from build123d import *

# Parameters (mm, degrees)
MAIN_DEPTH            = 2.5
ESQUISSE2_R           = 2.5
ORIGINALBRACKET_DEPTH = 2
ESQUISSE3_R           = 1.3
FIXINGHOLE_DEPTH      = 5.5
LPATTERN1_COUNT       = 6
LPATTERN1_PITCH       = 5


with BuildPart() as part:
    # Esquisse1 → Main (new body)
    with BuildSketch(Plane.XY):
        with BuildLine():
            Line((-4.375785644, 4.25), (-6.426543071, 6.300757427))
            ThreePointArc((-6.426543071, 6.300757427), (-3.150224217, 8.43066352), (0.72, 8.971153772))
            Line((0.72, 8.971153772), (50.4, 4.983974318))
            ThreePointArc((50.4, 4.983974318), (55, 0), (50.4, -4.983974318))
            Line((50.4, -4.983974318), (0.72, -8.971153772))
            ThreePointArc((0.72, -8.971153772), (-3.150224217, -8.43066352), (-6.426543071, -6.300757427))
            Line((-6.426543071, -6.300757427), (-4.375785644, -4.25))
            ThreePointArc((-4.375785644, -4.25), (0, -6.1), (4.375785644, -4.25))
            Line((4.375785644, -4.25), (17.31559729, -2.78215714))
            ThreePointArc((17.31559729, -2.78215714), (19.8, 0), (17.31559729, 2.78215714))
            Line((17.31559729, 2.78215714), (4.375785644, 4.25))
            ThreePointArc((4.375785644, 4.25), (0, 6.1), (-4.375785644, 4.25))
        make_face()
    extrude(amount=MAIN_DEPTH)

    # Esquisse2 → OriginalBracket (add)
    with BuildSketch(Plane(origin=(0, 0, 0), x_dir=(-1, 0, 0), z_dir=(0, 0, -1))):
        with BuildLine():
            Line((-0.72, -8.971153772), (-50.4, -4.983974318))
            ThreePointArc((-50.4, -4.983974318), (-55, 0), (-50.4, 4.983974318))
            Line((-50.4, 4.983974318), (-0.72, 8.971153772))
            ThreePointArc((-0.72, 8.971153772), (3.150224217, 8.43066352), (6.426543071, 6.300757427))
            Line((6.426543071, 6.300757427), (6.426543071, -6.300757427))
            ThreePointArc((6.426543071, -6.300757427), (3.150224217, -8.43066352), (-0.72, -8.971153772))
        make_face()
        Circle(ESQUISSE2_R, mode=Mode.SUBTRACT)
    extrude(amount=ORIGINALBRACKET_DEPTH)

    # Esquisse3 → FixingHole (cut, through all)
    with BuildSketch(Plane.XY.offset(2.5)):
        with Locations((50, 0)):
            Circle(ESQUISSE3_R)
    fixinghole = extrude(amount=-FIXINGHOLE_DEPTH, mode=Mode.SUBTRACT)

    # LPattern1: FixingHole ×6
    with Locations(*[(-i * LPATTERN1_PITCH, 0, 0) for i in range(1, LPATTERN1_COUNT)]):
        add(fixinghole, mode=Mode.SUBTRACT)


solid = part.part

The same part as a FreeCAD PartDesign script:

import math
import FreeCAD as App
import Part
import Sketcher

V = App.Vector

doc = App.newDocument("Part")
body = doc.addObject("PartDesign::Body", "Body")

sketch1 = body.newObject("Sketcher::SketchObject", "Sketch")
sketch1.AttachmentSupport = (doc.getObject("XY_Plane"), [""])
sketch1.MapMode = "FlatFace"
sketch1.addGeometry(Part.LineSegment(V(-6.426543, 6.300757, 0), V(-4.375786, 4.25, 0)), False)
sketch1.addGeometry(Part.ArcOfCircle(Part.Circle(V(0, 0, 0), V(0, 0, 1), 6.1), math.radians(44.164543), math.radians(135.835457)), False)
sketch1.addGeometry(Part.LineSegment(V(4.375786, 4.25, 0), V(17.315597, 2.782157, 0)), False)
sketch1.addGeometry(Part.ArcOfCircle(Part.Circle(V(17, 0, 0), V(0, 0, 1), 2.8), math.radians(-83.52825), math.radians(83.52825)), False)
sketch1.addGeometry(Part.LineSegment(V(17.315597, -2.782157, 0), V(4.375786, -4.25, 0)), False)
sketch1.addGeometry(Part.ArcOfCircle(Part.Circle(V(0, 0, 0), V(0, 0, 1), 6.1), math.radians(-135.835457), math.radians(-44.164543)), False)
sketch1.addGeometry(Part.LineSegment(V(-4.375786, -4.25, 0), V(-6.426543, -6.300757, 0)), False)
sketch1.addGeometry(Part.ArcOfCircle(Part.Circle(V(0, 0, 0), V(0, 0, 1), 9), math.radians(-135.566244), math.radians(-85.411434)), False)
sketch1.addGeometry(Part.LineSegment(V(0.72, -8.971154, 0), V(50.4, -4.983974, 0)), False)
sketch1.addGeometry(Part.ArcOfCircle(Part.Circle(V(50, 0, 0), V(0, 0, 1), 5), math.radians(-85.411434), math.radians(85.411434)), False)
sketch1.addGeometry(Part.LineSegment(V(50.4, 4.983974, 0), V(0.72, 8.971154, 0)), False)
sketch1.addGeometry(Part.ArcOfCircle(Part.Circle(V(0, 0, 0), V(0, 0, 1), 9), math.radians(85.411434), math.radians(135.566244)), False)
sketch1.addConstraint(Sketcher.Constraint("Coincident", 0, 2, 1, 2))
sketch1.addConstraint(Sketcher.Constraint("Coincident", 1, 1, 2, 1))
sketch1.addConstraint(Sketcher.Constraint("Tangent", 2, 2, 3, 2))
sketch1.addConstraint(Sketcher.Constraint("Tangent", 3, 1, 4, 1))
sketch1.addConstraint(Sketcher.Constraint("Coincident", 4, 2, 5, 2))
sketch1.addConstraint(Sketcher.Constraint("Coincident", 5, 1, 6, 1))
sketch1.addConstraint(Sketcher.Constraint("Coincident", 6, 2, 7, 1))
sketch1.addConstraint(Sketcher.Constraint("Tangent", 7, 2, 8, 1))
sketch1.addConstraint(Sketcher.Constraint("Tangent", 8, 2, 9, 1))
sketch1.addConstraint(Sketcher.Constraint("Tangent", 9, 2, 10, 1))
sketch1.addConstraint(Sketcher.Constraint("Tangent", 10, 2, 11, 1))
sketch1.addConstraint(Sketcher.Constraint("Coincident", 11, 2, 0, 1))
sketch1.addConstraint(Sketcher.Constraint("Coincident", 1, 3, -1, 1))
sketch1.addConstraint(Sketcher.Constraint("Coincident", 5, 3, -1, 1))
sketch1.addConstraint(Sketcher.Constraint("Coincident", 7, 3, -1, 1))
sketch1.addConstraint(Sketcher.Constraint("Coincident", 11, 3, -1, 1))
sketch1.addConstraint(Sketcher.Constraint("Equal", 1, 5))
sketch1.addConstraint(Sketcher.Constraint("Equal", 7, 11))
sketch1.addConstraint(Sketcher.Constraint("Symmetric", 2, 2, 3, 1, -1))
sketch1.addConstraint(Sketcher.Constraint("PointOnObject", 9, 3, -1))
sketch1.addConstraint(Sketcher.Constraint("Perpendicular", 0, 6))
sketch1.addConstraint(Sketcher.Constraint("Horizontal", 0, 2, 1, 1))
sketch1.addConstraint(Sketcher.Constraint("Horizontal", 4, 2, 5, 1))
sketch1.addConstraint(Sketcher.Constraint("Vertical", 6, 2, 11, 2))
sketch1.addConstraint(Sketcher.Constraint("Radius", 7, 9.0))
sketch1.addConstraint(Sketcher.Constraint("Radius", 9, 5.0))
sketch1.addConstraint(Sketcher.Constraint("Radius", 1, 6.1))
sketch1.addConstraint(Sketcher.Constraint("Radius", 3, 2.8))
sketch1.addConstraint(Sketcher.Constraint("DistanceX", -1, 1, 3, 3, 17.0))
sketch1.addConstraint(Sketcher.Constraint("DistanceX", -1, 1, 9, 3, 50.0))
sketch1.addConstraint(Sketcher.Constraint("DistanceY", 4, 2, 1, 1, 8.5))
pad1 = body.newObject("PartDesign::Pad", "Pad")
pad1.Profile = sketch1
pad1.Length = 2.5

sketch2 = body.newObject("Sketcher::SketchObject", "Sketch001")
sketch2.AttachmentSupport = (doc.getObject("XY_Plane"), [""])
sketch2.MapMode = "FlatFace"
sketch2.addGeometry(Part.LineSegment(V(50.4, -4.983974, 0), V(0.72, -8.971154, 0)), False)
sketch2.addGeometry(Part.ArcOfCircle(Part.Circle(V(0, 0, 0), V(0, 0, 1), 9), math.radians(-135.566244), math.radians(-85.411434)), False)
sketch2.addGeometry(Part.LineSegment(V(-6.426543, -6.300757, 0), V(-6.426543, 6.300757, 0)), False)
sketch2.addGeometry(Part.ArcOfCircle(Part.Circle(V(0, 0, 0), V(0, 0, 1), 9), math.radians(85.411434), math.radians(135.566244)), False)
sketch2.addGeometry(Part.LineSegment(V(0.72, 8.971154, 0), V(50.4, 4.983974, 0)), False)
sketch2.addGeometry(Part.ArcOfCircle(Part.Circle(V(50, 0, 0), V(0, 0, 1), 5), math.radians(-85.411434), math.radians(85.411434)), False)
sketch2.addGeometry(Part.Circle(V(0, 0, 0), V(0, 0, 1), 2.5), False)
sketch2.addConstraint(Sketcher.Constraint("Tangent", 0, 2, 1, 2))
sketch2.addConstraint(Sketcher.Constraint("Coincident", 1, 1, 2, 1))
sketch2.addConstraint(Sketcher.Constraint("Coincident", 2, 2, 3, 2))
sketch2.addConstraint(Sketcher.Constraint("Tangent", 3, 1, 4, 1))
sketch2.addConstraint(Sketcher.Constraint("Tangent", 4, 2, 5, 2))
sketch2.addConstraint(Sketcher.Constraint("Tangent", 5, 1, 0, 1))
sketch2.addConstraint(Sketcher.Constraint("Vertical", 2))
sketch2.addConstraint(Sketcher.Constraint("Coincident", 1, 3, -1, 1))
sketch2.addConstraint(Sketcher.Constraint("Coincident", 3, 3, -1, 1))
sketch2.addConstraint(Sketcher.Constraint("Coincident", 6, 3, -1, 1))
sketch2.addConstraint(Sketcher.Constraint("Equal", 1, 3))
sketch2.addConstraint(Sketcher.Constraint("PointOnObject", 5, 3, -1))
sketch2.addConstraint(Sketcher.Constraint("Diameter", 6, 5.0))
sketch2.addConstraint(Sketcher.Constraint("Radius", 1, 9.0))
sketch2.addConstraint(Sketcher.Constraint("Radius", 5, 5.0))
sketch2.addConstraint(Sketcher.Constraint("DistanceX", -1, 1, 5, 3, 50.0))
sketch2.addConstraint(Sketcher.Constraint("DistanceY", 2, 1, 2, 2, 12.601515))
pad2 = body.newObject("PartDesign::Pad", "Pad001")
pad2.Profile = sketch2
pad2.Length = 2
pad2.Reversed = True

sketch3 = body.newObject("Sketcher::SketchObject", "Sketch002")
sketch3.AttachmentSupport = (doc.getObject("XY_Plane"), [""])
sketch3.MapMode = "FlatFace"
sketch3.AttachmentOffset = App.Placement(V(0, 0, 2.5), App.Rotation())
sketch3.addGeometry(Part.Circle(V(50, 0, 0), V(0, 0, 1), 1.3), False)
sketch3.addConstraint(Sketcher.Constraint("PointOnObject", 0, 3, -1))
sketch3.addConstraint(Sketcher.Constraint("Diameter", 0, 2.6))
sketch3.addConstraint(Sketcher.Constraint("DistanceX", -1, 1, 0, 3, 50.0))
pocket1 = body.newObject("PartDesign::Pocket", "Pocket")
pocket1.Profile = sketch3
pocket1.Type = "ThroughAll"
doc.recompute()

linearpattern = body.newObject("PartDesign::LinearPattern", "LinearPattern")
linearpattern.Originals = [pocket1]
linearpattern.Direction = (doc.getObject("X_Axis"), [""])
linearpattern.Mode = "offset"
linearpattern.Offset = 5
linearpattern.Occurrences = 6
linearpattern.Reversed = True
body.Tip = linearpattern

doc.recompute()
